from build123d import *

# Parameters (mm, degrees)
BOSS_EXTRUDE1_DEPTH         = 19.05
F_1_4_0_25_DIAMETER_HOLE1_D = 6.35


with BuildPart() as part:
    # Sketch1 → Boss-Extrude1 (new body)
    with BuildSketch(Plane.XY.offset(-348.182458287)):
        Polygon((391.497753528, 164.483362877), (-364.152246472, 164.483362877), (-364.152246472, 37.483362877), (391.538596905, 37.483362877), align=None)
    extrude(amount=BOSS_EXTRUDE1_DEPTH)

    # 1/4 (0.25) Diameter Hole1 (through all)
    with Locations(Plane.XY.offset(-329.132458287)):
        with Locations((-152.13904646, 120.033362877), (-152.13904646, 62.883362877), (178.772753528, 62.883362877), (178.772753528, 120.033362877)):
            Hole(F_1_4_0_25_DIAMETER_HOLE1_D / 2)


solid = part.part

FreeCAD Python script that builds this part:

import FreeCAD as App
import Part
import Sketcher
from FreeCAD import Vector
Q = App.Units.Quantity


def add_polygon(sketch, points):
    """Adds a closed chain of lines whose ends are joined by coincident constraints."""
    first, n = sketch.GeometryCount, len(points)
    for a, b in zip(points, points[1:] + points[:1]):
        sketch.addGeometry(Part.LineSegment(App.Vector(*a, 0), App.Vector(*b, 0)), False)
    for i in range(n):
        sketch.addConstraint(Sketcher.Constraint("Coincident", first + i, 2, first + (i + 1) % n, 1))

doc = App.newDocument("Part")
body = doc.addObject("PartDesign::Body", "Body")

sketch1 = doc.addObject("Sketcher::SketchObject", "Sketch")
body.addObject(sketch1)
sketch1.AttachmentSupport = (doc.XY_Plane, [""])
sketch1.MapMode = "FlatFace"
sketch1.AttachmentOffset = App.Placement(Vector(0, 0, -348.182458), App.Rotation())
add_polygon(sketch1, [(391.497754, 164.483363), (-364.152246, 164.483363), (-364.152246, 37.483363), (391.538597, 37.483363)])
sketch1.addConstraint([
    Sketcher.Constraint("Horizontal", 0),
    Sketcher.Constraint("Vertical", 1),
    Sketcher.Constraint("Horizontal", 2),
    Sketcher.Constraint("DistanceY", 1, 2, 1, 1, Q("5 in")),
    Sketcher.Constraint("DistanceX", 0, 2, 0, 1, Q("29.75 in")),
    Sketcher.Constraint("DistanceX", 2, 1, 2, 2, 755.690843),
    Sketcher.Constraint("DistanceX", 0, 2, -1, 1, 364.152246),
    Sketcher.Constraint("DistanceY", -1, 1, 0, 2, 164.483363),
])
pad1 = doc.addObject("PartDesign::Pad", "Pad")
body.addObject(pad1)
pad1.Profile = sketch1
pad1.Length = Q("0.75 in")

sketch2 = doc.addObject("Sketcher::SketchObject", "Sketch001")
body.addObject(sketch2)
sketch2.AttachmentSupport = (doc.XY_Plane, [""])
sketch2.MapMode = "FlatFace"
sketch2.AttachmentOffset = App.Placement(Vector(0, 0, -329.132458), App.Rotation())
sketch2.addGeometry([
    Part.Circle(Vector(-152.139046, 120.033363, 0), Vector(0, 0, 1), 3.175),
    Part.Circle(Vector(-152.139046, 62.883363, 0), Vector(0, 0, 1), 3.175),
    Part.Circle(Vector(178.772754, 62.883363, 0), Vector(0, 0, 1), 3.175),
    Part.Circle(Vector(178.772754, 120.033363, 0), Vector(0, 0, 1), 3.175),
], False)
sketch2.addConstraint([
    Sketcher.Constraint("Equal", 0, 1),
    Sketcher.Constraint("Equal", 1, 2),
    Sketcher.Constraint("Equal", 2, 3),
    Sketcher.Constraint("Horizontal", 1, 3, 2, 3),
    Sketcher.Constraint("Horizontal", 0, 3, 3, 3),
    Sketcher.Constraint("Vertical", 0, 3, 1, 3),
    Sketcher.Constraint("Vertical", 2, 3, 3, 3),
    Sketcher.Constraint("Diameter", 0, Q("0.25 in")),
    Sketcher.Constraint("DistanceY", 1, 3, 0, 3, Q("2.25 in")),
    Sketcher.Constraint("DistanceX", 1, 3, 2, 3, 330.9118),
    Sketcher.Constraint("DistanceX", 0, 3, -1, 1, 152.139046),
    Sketcher.Constraint("DistanceY", -1, 1, 0, 3, 120.033363),
])
doc.recompute()
hole = doc.addObject("PartDesign::Hole", "Hole")
body.addObject(hole)
hole.Profile = sketch2
hole.ThreadType = "None"
hole.Diameter = Q("0.25 in")
hole.DepthType = "ThroughAll"

doc.recompute()
